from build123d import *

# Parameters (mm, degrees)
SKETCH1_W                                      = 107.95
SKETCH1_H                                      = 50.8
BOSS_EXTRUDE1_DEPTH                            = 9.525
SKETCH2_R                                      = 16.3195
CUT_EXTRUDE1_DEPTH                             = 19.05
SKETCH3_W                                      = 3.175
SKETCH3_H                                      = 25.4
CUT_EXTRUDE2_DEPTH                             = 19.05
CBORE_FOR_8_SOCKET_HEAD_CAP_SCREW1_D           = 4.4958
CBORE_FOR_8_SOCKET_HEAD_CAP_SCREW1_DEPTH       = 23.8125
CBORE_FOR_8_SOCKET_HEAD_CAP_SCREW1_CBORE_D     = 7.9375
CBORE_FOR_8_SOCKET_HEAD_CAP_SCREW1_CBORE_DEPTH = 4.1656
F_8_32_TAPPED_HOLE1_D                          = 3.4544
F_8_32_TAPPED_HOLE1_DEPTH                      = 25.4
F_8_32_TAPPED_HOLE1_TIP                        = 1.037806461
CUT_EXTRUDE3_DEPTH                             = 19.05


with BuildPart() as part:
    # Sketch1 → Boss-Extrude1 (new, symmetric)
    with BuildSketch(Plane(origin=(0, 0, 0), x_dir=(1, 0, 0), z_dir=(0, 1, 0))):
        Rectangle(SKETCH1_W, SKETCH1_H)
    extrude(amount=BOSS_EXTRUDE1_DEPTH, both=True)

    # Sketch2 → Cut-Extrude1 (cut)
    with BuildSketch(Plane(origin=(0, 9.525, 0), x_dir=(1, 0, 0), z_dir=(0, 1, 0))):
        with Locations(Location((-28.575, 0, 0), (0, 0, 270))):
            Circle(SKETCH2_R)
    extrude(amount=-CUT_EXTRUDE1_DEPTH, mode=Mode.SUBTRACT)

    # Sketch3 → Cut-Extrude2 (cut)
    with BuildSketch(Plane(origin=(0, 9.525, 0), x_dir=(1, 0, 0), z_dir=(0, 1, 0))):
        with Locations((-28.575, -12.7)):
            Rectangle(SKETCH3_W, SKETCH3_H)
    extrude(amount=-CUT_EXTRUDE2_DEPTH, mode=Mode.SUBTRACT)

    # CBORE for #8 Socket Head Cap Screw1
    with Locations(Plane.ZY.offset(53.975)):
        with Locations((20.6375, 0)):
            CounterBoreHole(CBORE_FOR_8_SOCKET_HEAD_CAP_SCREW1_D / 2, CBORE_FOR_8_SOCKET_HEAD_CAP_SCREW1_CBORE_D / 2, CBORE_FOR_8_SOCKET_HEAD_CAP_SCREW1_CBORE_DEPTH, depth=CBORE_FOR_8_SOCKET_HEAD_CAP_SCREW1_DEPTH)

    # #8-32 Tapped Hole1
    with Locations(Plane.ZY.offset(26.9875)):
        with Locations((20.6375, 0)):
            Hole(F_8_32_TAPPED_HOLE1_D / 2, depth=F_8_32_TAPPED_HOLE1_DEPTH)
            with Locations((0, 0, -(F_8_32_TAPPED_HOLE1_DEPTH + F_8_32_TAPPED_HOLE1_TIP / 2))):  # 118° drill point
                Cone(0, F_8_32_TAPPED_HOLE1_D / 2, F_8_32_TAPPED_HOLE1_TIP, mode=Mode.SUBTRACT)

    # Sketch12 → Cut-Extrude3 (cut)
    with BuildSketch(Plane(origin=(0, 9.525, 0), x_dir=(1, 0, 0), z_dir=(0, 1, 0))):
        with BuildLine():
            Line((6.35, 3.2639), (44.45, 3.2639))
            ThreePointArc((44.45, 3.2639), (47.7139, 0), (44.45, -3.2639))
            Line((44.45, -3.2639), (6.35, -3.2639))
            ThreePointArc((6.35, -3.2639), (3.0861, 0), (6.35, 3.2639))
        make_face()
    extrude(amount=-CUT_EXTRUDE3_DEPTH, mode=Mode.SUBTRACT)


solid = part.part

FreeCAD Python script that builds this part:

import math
import FreeCAD as App
import Part
import Sketcher
Q = App.Units.Quantity

doc = App.newDocument("Part")
body = doc.addObject("PartDesign::Body", "Body")

# Sketch on XZ plane
sketch1 = body.newObject("Sketcher::SketchObject", "Sketch")
sketch1.AttachmentSupport = (doc.getObject("XZ_Plane"), [""])
sketch1.MapMode = "FlatFace"
sketch1.addGeometry(Part.LineSegment(App.Vector(-54, -25, 0), App.Vector(-54, 25, 0)), False)
sketch1.addGeometry(Part.LineSegment(App.Vector(-54, 25, 0), App.Vector(54, 25, 0)), False)
sketch1.addGeometry(Part.LineSegment(App.Vector(54, 25, 0), App.Vector(54, -25, 0)), False)
sketch1.addGeometry(Part.LineSegment(App.Vector(54, -25, 0), App.Vector(-54, -25, 0)), False)
sketch1.addConstraint(Sketcher.Constraint("Coincident", 0, 2, 1, 1))
sketch1.addConstraint(Sketcher.Constraint("Coincident", 1, 2, 2, 1))
sketch1.addConstraint(Sketcher.Constraint("Coincident", 2, 2, 3, 1))
sketch1.addConstraint(Sketcher.Constraint("Coincident", 3, 2, 0, 1))
sketch1.addConstraint(Sketcher.Constraint("Vertical", 0))
sketch1.addConstraint(Sketcher.Constraint("Horizontal", 1))
sketch1.addConstraint(Sketcher.Constraint("Vertical", 2))
sketch1.addConstraint(Sketcher.Constraint("Horizontal", 3))
sketch1.addConstraint(Sketcher.Constraint("Symmetric", 0, 2, 2, 2, -1, 1))
sketch1.addConstraint(Sketcher.Constraint("DistanceY", 0, 1, 0, 2, Q("2 in")))
sketch1.addConstraint(Sketcher.Constraint("DistanceX", 1, 1, 1, 2, Q("4.25 in")))
pad1 = body.newObject("PartDesign::Pad", "Pad")
pad1.Profile = sketch1
pad1.Length = Q("0.75 in")
pad1.Midplane = True

# Sketch on XZ plane
sketch2 = body.newObject("Sketcher::SketchObject", "Sketch001")
sketch2.AttachmentSupport = (doc.getObject("XZ_Plane"), [""])
sketch2.MapMode = "FlatFace"
sketch2.AttachmentOffset = App.Placement(App.Vector(0, 0, -0.375 * 25.4), App.Rotation())
sketch2.addGeometry(Part.Circle(App.Vector(-29, 0, 0), App.Vector(0, 0, 1), 16), False)
sketch2.addConstraint(Sketcher.Constraint("PointOnObject", 0, 3, -1))
sketch2.addConstraint(Sketcher.Constraint("Diameter", 0, Q("1.285 in")))
sketch2.addConstraint(Sketcher.Constraint("DistanceX", 0, 3, -1, 1, Q("1.125 in")))
pocket1 = body.newObject("PartDesign::Pocket", "Pocket")
pocket1.Profile = sketch2
pocket1.Length = Q("0.75 in")
pocket1.Reversed = True

# Sketch on XZ plane
sketch3 = body.newObject("Sketcher::SketchObject", "Sketch002")
sketch3.AttachmentSupport = (doc.getObject("XZ_Plane"), [""])
sketch3.MapMode = "FlatFace"
sketch3.AttachmentOffset = App.Placement(App.Vector(0, 0, -0.375 * 25.4), App.Rotation())
sketch3.addGeometry(Part.LineSegment(App.Vector(-30.2, 0, 0), App.Vector(-30.2, 25.4, 0)), False)
sketch3.addGeometry(Part.LineSegment(App.Vector(-30.2, 25.4, 0), App.Vector(-27, 25.4, 0)), False)
sketch3.addGeometry(Part.LineSegment(App.Vector(-27, 25.4, 0), App.Vector(-27, 0, 0)), False)
sketch3.addGeometry(Part.LineSegment(App.Vector(-27, 0, 0), App.Vector(-30.2, 0, 0)), False)
sketch3.addConstraint(Sketcher.Constraint("Coincident", 0, 2, 1, 1))
sketch3.addConstraint(Sketcher.Constraint("Coincident", 1, 2, 2, 1))
sketch3.addConstraint(Sketcher.Constraint("Coincident", 2, 2, 3, 1))
sketch3.addConstraint(Sketcher.Constraint("Coincident", 3, 2, 0, 1))
sketch3.addConstraint(Sketcher.Constraint("Vertical", 0))
sketch3.addConstraint(Sketcher.Constraint("Horizontal", 1))
sketch3.addConstraint(Sketcher.Constraint("Vertical", 2))
sketch3.addConstraint(Sketcher.Constraint("Horizontal", 3))
sketch3.addConstraint(Sketcher.Constraint("PointOnObject", 2, 2, -1))
sketch3.addConstraint(Sketcher.Constraint("DistanceY", 0, 1, 0, 2, Q("1 in")))
sketch3.addConstraint(Sketcher.Constraint("DistanceX", 1, 1, 1, 2, Q("0.125 in")))
sketch3.addConstraint(Sketcher.Constraint("DistanceX", 0, 2, -1, 1, Q("1.1875 in")))
pocket2 = body.newObject("PartDesign::Pocket", "Pocket001")
pocket2.Profile = sketch3
pocket2.Length = Q("0.75 in")
pocket2.Reversed = True

# Sketch on YZ plane
sketch4 = body.newObject("Sketcher::SketchObject", "Sketch003")
sketch4.AttachmentSupport = (doc.getObject("YZ_Plane"), [""])
sketch4.MapMode = "FlatFace"
sketch4.AttachmentOffset = App.Placement(App.Vector(0, 0, -2.125 * 25.4), App.Rotation())
sketch4.addGeometry(Part.Circle(App.Vector(0, 20.6, 0), App.Vector(0, 0, 1), 2.2), False)
sketch4.addConstraint(Sketcher.Constraint("PointOnObject", 0, 3, -2))
sketch4.addConstraint(Sketcher.Constraint("Diameter", 0, Q("0.177 in")))
sketch4.addConstraint(Sketcher.Constraint("DistanceY", -1, 1, 0, 3, Q("0.8125 in")))
doc.recompute()
hole = body.newObject("PartDesign::Hole", "Hole")
hole.Profile = sketch4
hole.ThreadType = "None"
hole.Diameter = Q("0.177 in")
hole.DepthType = "Dimension"
hole.Depth = Q("0.9375 in")
hole.DrillPoint = "Flat"
hole.HoleCutType = "Counterbore"
hole.HoleCutDiameter = Q("0.3125 in")
hole.HoleCutDepth = Q("0.164 in")
hole.Reversed = True

# Sketch on YZ plane
sketch5 = body.newObject("Sketcher::SketchObject", "Sketch004")
sketch5.AttachmentSupport = (doc.getObject("YZ_Plane"), [""])
sketch5.MapMode = "FlatFace"
sketch5.AttachmentOffset = App.Placement(App.Vector(0, 0, -1.0625 * 25.4), App.Rotation())
sketch5.addGeometry(Part.Circle(App.Vector(0, 20.6, 0), App.Vector(0, 0, 1), 1.7), False)
sketch5.addConstraint(Sketcher.Constraint("PointOnObject", 0, 3, -2))
sketch5.addConstraint(Sketcher.Constraint("Diameter", 0, Q("0.136 in")))
sketch5.addConstraint(Sketcher.Constraint("DistanceY", -1, 1, 0, 3, Q("0.8125 in")))
doc.recompute()
hole2 = body.newObject("PartDesign::Hole", "Hole001")
hole2.Profile = sketch5
hole2.ThreadType = "None"
hole2.Diameter = Q("0.136 in")
hole2.DepthType = "Dimension"
hole2.Depth = Q("1 in")
hole2.DrillPoint = "Angled"
hole2.DrillPointAngle = 118
hole2.Reversed = True

# Sketch on XZ plane
sketch6 = body.newObject("Sketcher::SketchObject", "Sketch005")
sketch6.AttachmentSupport = (doc.getObject("XZ_Plane"), [""])
sketch6.MapMode = "FlatFace"
sketch6.AttachmentOffset = App.Placement(App.Vector(0, 0, -0.375 * 25.4), App.Rotation())
sketch6.addGeometry(Part.LineSegment(App.Vector(44.5, -3.3, 0), App.Vector(6.3, -3.3, 0)), False)
sketch6.addGeometry(Part.ArcOfCircle(Part.Circle(App.Vector(6.3, 0, 0), App.Vector(0, 0, 1), 3.3), math.radians(90), math.radians(270)), False)
sketch6.addGeometry(Part.LineSegment(App.Vector(6.3, 3.3, 0), App.Vector(44.5, 3.3, 0)), False)
sketch6.addGeometry(Part.ArcOfCircle(Part.Circle(App.Vector(44.5, 0, 0), App.Vector(0, 0, 1), 3.3), math.radians(-90), math.radians(90)), False)
sketch6.addConstraint(Sketcher.Constraint("Tangent", 0, 2, 1, 2))
sketch6.addConstraint(Sketcher.Constraint("Tangent", 1, 1, 2, 1))
sketch6.addConstraint(Sketcher.Constraint("Tangent", 2, 2, 3, 2))
sketch6.addConstraint(Sketcher.Constraint("Tangent", 3, 1, 0, 1))
sketch6.addConstraint(Sketcher.Constraint("Horizontal", 0))
sketch6.addConstraint(Sketcher.Constraint("Horizontal", 2))
sketch6.addConstraint(Sketcher.Constraint("PointOnObject", 1, 3, -1))
sketch6.addConstraint(Sketcher.Constraint("DistanceX", 0, 2, 0, 1, Q("1.5 in")))
sketch6.addConstraint(Sketcher.Constraint("Radius", 1, Q("0.1285 in")))
sketch6.addConstraint(Sketcher.Constraint("DistanceX", -1, 1, 1, 3, Q("0.25 in")))
pocket3 = body.newObject("PartDesign::Pocket", "Pocket002")
pocket3.Profile = sketch6
pocket3.Length = Q("0.75 in")
pocket3.Reversed = True

doc.recompute()
